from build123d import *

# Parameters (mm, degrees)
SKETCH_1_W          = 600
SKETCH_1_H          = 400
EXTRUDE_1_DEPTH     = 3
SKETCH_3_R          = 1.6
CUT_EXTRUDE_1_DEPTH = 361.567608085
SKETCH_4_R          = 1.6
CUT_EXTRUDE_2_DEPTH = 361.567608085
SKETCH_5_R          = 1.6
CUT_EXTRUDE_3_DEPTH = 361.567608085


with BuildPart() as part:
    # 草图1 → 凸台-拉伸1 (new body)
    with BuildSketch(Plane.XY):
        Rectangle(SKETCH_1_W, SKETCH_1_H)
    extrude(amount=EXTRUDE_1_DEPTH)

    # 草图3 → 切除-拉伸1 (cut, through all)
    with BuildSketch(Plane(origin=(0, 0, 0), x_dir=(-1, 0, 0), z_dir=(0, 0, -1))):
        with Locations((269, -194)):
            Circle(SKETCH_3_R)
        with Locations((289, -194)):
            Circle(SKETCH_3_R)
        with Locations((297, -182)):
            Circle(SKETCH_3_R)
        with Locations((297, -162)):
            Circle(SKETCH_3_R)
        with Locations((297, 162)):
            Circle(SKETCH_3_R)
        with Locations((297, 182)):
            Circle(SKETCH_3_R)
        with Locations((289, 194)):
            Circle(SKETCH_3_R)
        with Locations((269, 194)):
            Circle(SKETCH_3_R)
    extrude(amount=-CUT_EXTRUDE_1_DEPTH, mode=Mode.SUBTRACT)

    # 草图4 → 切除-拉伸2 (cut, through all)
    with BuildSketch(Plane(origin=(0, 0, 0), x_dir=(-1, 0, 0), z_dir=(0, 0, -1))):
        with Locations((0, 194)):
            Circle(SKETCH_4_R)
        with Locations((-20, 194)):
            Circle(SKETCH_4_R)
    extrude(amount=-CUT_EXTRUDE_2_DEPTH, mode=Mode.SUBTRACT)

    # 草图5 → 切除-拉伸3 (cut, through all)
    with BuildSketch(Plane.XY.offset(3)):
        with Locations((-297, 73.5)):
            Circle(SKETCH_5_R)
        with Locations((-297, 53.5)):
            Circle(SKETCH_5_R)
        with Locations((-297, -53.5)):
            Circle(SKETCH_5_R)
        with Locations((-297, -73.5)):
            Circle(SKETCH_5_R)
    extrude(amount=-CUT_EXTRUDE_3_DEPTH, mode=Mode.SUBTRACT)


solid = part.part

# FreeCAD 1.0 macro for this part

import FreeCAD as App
import Part
import Sketcher


def add_polygon(sketch, points):
    """Adds a closed chain of lines whose ends are joined by coincident constraints."""
    first, n = sketch.GeometryCount, len(points)
    for a, b in zip(points, points[1:] + points[:1]):
        sketch.addGeometry(Part.LineSegment(App.Vector(*a, 0), App.Vector(*b, 0)), False)
    for i in range(n):
        sketch.addConstraint(Sketcher.Constraint("Coincident", first + i, 2, first + (i + 1) % n, 1))

doc = App.newDocument("Part")
body = doc.addObject("PartDesign::Body", "Body")

sketch1 = body.newObject("Sketcher::SketchObject", "Sketch")
sketch1.AttachmentSupport = (doc.getObject("XY_Plane"), [""])
sketch1.MapMode = "FlatFace"
add_polygon(sketch1, [(-300, 200), (-300, -200), (300, -200), (300, 200)])
sketch1.addConstraint(Sketcher.Constraint("Vertical", 0))
sketch1.addConstraint(Sketcher.Constraint("Horizontal", 1))
sketch1.addConstraint(Sketcher.Constraint("Vertical", 2))
sketch1.addConstraint(Sketcher.Constraint("Horizontal", 3))
sketch1.addConstraint(Sketcher.Constraint("Symmetric", 0, 2, 2, 2, -1, 1))
sketch1.addConstraint(Sketcher.Constraint("DistanceX", 1, 1, 1, 2, 600.0))
sketch1.addConstraint(Sketcher.Constraint("DistanceY", 0, 2, 0, 1, 400.0))
pad1 = body.newObject("PartDesign::Pad", "Pad")
pad1.Profile = sketch1
pad1.Length = 3

sketch2 = body.newObject("Sketcher::SketchObject", "Sketch001")
sketch2.AttachmentSupport = (doc.getObject("XY_Plane"), [""])
sketch2.MapMode = "FlatFace"
sketch2.addGeometry(Part.Circle(App.Vector(-269, -194, 0), App.Vector(0, 0, 1), 1.6), False)
sketch2.addGeometry(Part.Circle(App.Vector(-289, -194, 0), App.Vector(0, 0, 1), 1.6), False)
sketch2.addGeometry(Part.Circle(App.Vector(-297, -182, 0), App.Vector(0, 0, 1), 1.6), False)
sketch2.addGeometry(Part.Circle(App.Vector(-297, -162, 0), App.Vector(0, 0, 1), 1.6), False)
sketch2.addGeometry(Part.Circle(App.Vector(-297, 162, 0), App.Vector(0, 0, 1), 1.6), False)
sketch2.addGeometry(Part.Circle(App.Vector(-297, 182, 0), App.Vector(0, 0, 1), 1.6), False)
sketch2.addGeometry(Part.Circle(App.Vector(-289, 194, 0), App.Vector(0, 0, 1), 1.6), False)
sketch2.addGeometry(Part.Circle(App.Vector(-269, 194, 0), App.Vector(0, 0, 1), 1.6), False)
sketch2.addConstraint(Sketcher.Constraint("Equal", 0, 1))
sketch2.addConstraint(Sketcher.Constraint("Equal", 1, 2))
sketch2.addConstraint(Sketcher.Constraint("Equal", 2, 3))
sketch2.addConstraint(Sketcher.Constraint("Equal", 3, 4))
sketch2.addConstraint(Sketcher.Constraint("Equal", 4, 5))
sketch2.addConstraint(Sketcher.Constraint("Equal", 5, 6))
sketch2.addConstraint(Sketcher.Constraint("Equal", 6, 7))
sketch2.addConstraint(Sketcher.Constraint("Symmetric", 3, 3, 4, 3, -1))
sketch2.addConstraint(Sketcher.Constraint("Symmetric", 2, 3, 5, 3, -1))
sketch2.addConstraint(Sketcher.Constraint("Symmetric", 1, 3, 6, 3, -1))
sketch2.addConstraint(Sketcher.Constraint("Symmetric", 0, 3, 7, 3, -1))
sketch2.addConstraint(Sketcher.Constraint("Horizontal", 0, 3, 1, 3))
sketch2.addConstraint(Sketcher.Constraint("Vertical", 2, 3, 3, 3))
sketch2.addConstraint(Sketcher.Constraint("Diameter", 0, 3.2))
sketch2.addConstraint(Sketcher.Constraint("DistanceX", 0, 3, -1, 1, 269.0))
sketch2.addConstraint(Sketcher.Constraint("DistanceY", 0, 3, -1, 1, 194.0))
sketch2.addConstraint(Sketcher.Constraint("DistanceX", 1, 3, -1, 1, 289.0))
sketch2.addConstraint(Sketcher.Constraint("DistanceX", 2, 3, -1, 1, 297.0))
sketch2.addConstraint(Sketcher.Constraint("DistanceY", 2, 3, -1, 1, 182.0))
sketch2.addConstraint(Sketcher.Constraint("DistanceY", 3, 3, -1, 1, 162.0))
pocket1 = body.newObject("PartDesign::Pocket", "Pocket")
pocket1.Profile = sketch2
pocket1.Type = "ThroughAll"
pocket1.Reversed = True

sketch3 = body.newObject("Sketcher::SketchObject", "Sketch002")
sketch3.AttachmentSupport = (doc.getObject("XY_Plane"), [""])
sketch3.MapMode = "FlatFace"
sketch3.addGeometry(Part.Circle(App.Vector(0, 194, 0), App.Vector(0, 0, 1), 1.6), False)
sketch3.addGeometry(Part.Circle(App.Vector(20, 194, 0), App.Vector(0, 0, 1), 1.6), False)
sketch3.addConstraint(Sketcher.Constraint("Equal", 0, 1))
sketch3.addConstraint(Sketcher.Constraint("PointOnObject", 0, 3, -2))
sketch3.addConstraint(Sketcher.Constraint("Horizontal", 0, 3, 1, 3))
sketch3.addConstraint(Sketcher.Constraint("Diameter", 0, 3.2))
sketch3.addConstraint(Sketcher.Constraint("DistanceY", -1, 1, 0, 3, 194.0))
sketch3.addConstraint(Sketcher.Constraint("DistanceX", -1, 1, 1, 3, 20.0))
pocket2 = body.newObject("PartDesign::Pocket", "Pocket001")
pocket2.Profile = sketch3
pocket2.Type = "ThroughAll"
pocket2.Reversed = True

sketch4 = body.newObject("Sketcher::SketchObject", "Sketch003")
sketch4.AttachmentSupport = (doc.getObject("XY_Plane"), [""])
sketch4.MapMode = "FlatFace"
sketch4.AttachmentOffset = App.Placement(App.Vector(0, 0, 3), App.Rotation())
sketch4.addGeometry(Part.Circle(App.Vector(-297, 73.5, 0), App.Vector(0, 0, 1), 1.6), False)
sketch4.addGeometry(Part.Circle(App.Vector(-297, 53.5, 0), App.Vector(0, 0, 1), 1.6), False)
sketch4.addGeometry(Part.Circle(App.Vector(-297, -53.5, 0), App.Vector(0, 0, 1), 1.6), False)
sketch4.addGeometry(Part.Circle(App.Vector(-297, -73.5, 0), App.Vector(0, 0, 1), 1.6), False)
sketch4.addConstraint(Sketcher.Constraint("Equal", 0, 1))
sketch4.addConstraint(Sketcher.Constraint("Equal", 1, 2))
sketch4.addConstraint(Sketcher.Constraint("Equal", 2, 3))
sketch4.addConstraint(Sketcher.Constraint("Symmetric", 1, 3, 2, 3, -1))
sketch4.addConstraint(Sketcher.Constraint("Symmetric", 0, 3, 3, 3, -1))
sketch4.addConstraint(Sketcher.Constraint("Vertical", 0, 3, 1, 3))
sketch4.addConstraint(Sketcher.Constraint("Diameter", 0, 3.2))
sketch4.addConstraint(Sketcher.Constraint("DistanceX", 0, 3, -1, 1, 297.0))
sketch4.addConstraint(Sketcher.Constraint("DistanceY", 1, 3, 0, 3, 20.0))
sketch4.addConstraint(Sketcher.Constraint("DistanceY", 2, 3, 1, 3, 107.0))
pocket3 = body.newObject("PartDesign::Pocket", "Pocket002")
pocket3.Profile = sketch4
pocket3.Type = "ThroughAll"

doc.recompute()
